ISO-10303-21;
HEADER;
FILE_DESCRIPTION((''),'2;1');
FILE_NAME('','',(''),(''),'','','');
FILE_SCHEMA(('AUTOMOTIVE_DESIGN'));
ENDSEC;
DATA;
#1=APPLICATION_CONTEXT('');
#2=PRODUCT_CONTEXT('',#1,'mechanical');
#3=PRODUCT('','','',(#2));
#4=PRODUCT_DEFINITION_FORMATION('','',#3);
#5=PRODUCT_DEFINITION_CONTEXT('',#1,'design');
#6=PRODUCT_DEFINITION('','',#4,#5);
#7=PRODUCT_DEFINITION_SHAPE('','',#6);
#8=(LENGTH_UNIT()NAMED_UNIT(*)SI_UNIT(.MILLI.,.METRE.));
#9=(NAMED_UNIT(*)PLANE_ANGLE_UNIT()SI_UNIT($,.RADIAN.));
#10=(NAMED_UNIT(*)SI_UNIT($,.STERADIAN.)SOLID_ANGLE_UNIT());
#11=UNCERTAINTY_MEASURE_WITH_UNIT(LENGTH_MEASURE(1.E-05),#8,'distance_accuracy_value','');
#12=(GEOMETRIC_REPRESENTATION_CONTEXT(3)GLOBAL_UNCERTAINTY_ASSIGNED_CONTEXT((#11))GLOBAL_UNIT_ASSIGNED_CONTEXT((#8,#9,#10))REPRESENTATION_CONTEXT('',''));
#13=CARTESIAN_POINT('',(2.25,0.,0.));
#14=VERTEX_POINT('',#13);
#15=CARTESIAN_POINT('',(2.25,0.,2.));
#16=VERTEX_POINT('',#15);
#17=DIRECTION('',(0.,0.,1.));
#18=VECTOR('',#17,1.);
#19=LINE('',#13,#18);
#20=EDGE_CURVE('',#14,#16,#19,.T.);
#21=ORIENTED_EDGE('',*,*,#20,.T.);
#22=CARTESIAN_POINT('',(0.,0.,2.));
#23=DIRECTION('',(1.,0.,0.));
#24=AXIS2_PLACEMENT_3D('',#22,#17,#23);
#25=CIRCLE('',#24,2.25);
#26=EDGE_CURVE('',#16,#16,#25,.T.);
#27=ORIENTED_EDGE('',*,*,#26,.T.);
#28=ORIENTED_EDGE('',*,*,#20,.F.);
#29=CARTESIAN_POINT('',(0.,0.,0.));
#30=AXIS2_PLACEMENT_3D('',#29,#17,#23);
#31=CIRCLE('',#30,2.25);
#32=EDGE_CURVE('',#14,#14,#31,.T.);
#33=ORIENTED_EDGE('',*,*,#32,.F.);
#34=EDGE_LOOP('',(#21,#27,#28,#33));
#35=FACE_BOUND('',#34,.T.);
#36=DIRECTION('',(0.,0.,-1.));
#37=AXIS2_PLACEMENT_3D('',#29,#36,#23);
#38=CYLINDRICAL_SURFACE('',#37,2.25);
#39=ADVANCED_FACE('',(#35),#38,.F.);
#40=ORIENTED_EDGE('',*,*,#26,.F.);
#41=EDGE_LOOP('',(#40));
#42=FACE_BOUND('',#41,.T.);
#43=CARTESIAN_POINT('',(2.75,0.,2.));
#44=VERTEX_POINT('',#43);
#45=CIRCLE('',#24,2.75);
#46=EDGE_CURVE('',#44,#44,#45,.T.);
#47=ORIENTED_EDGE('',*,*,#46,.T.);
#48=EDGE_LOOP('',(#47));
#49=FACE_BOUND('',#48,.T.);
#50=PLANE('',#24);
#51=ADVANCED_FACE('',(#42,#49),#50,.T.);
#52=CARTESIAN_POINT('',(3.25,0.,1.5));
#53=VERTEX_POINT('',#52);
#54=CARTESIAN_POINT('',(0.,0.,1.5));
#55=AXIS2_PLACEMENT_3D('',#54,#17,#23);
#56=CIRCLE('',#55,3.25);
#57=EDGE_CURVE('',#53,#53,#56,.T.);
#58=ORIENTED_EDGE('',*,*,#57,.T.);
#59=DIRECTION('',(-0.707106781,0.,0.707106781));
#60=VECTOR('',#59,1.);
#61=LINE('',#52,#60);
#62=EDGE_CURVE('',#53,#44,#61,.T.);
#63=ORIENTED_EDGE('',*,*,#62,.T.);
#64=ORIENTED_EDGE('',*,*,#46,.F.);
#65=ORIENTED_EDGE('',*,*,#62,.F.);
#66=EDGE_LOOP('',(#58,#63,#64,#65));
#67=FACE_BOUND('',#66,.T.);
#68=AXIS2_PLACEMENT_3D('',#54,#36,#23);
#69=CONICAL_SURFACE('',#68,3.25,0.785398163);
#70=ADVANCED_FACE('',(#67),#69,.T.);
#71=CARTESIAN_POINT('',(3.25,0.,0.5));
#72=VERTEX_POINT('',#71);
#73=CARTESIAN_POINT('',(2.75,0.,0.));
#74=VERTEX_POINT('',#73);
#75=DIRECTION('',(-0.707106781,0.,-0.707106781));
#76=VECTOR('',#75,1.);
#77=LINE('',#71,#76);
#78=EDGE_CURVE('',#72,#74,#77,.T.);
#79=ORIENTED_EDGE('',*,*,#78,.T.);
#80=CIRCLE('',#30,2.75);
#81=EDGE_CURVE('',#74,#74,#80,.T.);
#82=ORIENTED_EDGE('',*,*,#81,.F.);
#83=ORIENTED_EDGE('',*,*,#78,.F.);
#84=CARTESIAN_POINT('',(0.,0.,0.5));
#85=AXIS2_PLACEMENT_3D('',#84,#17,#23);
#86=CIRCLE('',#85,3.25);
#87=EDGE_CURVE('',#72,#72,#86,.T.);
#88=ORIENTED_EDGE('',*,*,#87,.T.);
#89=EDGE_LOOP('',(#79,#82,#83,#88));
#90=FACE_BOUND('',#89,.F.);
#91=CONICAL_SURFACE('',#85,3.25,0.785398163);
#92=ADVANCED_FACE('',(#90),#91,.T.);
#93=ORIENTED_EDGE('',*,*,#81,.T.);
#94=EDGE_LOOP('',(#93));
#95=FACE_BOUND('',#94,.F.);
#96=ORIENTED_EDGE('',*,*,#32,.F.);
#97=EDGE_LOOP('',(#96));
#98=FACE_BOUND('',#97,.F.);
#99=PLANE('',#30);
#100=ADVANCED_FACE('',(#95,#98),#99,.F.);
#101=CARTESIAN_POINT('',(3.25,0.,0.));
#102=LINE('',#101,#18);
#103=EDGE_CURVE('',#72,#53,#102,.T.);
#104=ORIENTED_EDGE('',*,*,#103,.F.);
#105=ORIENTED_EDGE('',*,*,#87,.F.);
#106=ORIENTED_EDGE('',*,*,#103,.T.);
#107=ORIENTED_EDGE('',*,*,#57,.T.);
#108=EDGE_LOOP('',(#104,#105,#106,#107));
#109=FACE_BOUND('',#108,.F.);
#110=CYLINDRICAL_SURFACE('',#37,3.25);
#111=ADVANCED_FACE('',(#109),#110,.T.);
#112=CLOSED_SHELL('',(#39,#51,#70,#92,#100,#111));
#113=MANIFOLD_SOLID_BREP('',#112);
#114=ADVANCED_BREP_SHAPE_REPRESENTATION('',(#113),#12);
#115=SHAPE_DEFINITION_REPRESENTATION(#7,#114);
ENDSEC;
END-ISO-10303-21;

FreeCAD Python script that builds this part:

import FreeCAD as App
import Part
import Sketcher

V = App.Vector


def edges_at(feature, points):
    """Names of the edges that pass closest to the given points."""
    edges = feature.Shape.Edges
    near = lambda p: min(range(len(edges)), key=lambda i: edges[i].distToShape(Part.Vertex(*p))[0])
    return sorted({f"Edge{near(p) + 1}" for p in points})

doc = App.newDocument("Part")
params = doc.addObject("Spreadsheet::Sheet", "Params")
for row, (alias, value) in enumerate([
    ("sketch1_diameter", "6.5 mm"),
    ("sketch1_diameter2", "4.5 mm"),
    ("pad1_length", "2 mm"),
    ("chamfer_size", "0.5 mm"),
], start=1):
    params.set(f"A{row}", alias)
    params.set(f"B{row}", "=" + value)
    params.setAlias(f"B{row}", alias)

body = doc.addObject("PartDesign::Body", "Body")

sketch1 = body.newObject("Sketcher::SketchObject", "Sketch")
sketch1.AttachmentSupport = (doc.getObject("XY_Plane"), [""])
sketch1.MapMode = "FlatFace"
sketch1.addGeometry(Part.Circle(V(0, 0, 0), V(0, 0, 1), 3.2), False)
sketch1.addGeometry(Part.Circle(V(0, 0, 0), V(0, 0, 1), 2.2), False)
sketch1.addConstraint(Sketcher.Constraint("Coincident", 0, 3, -1, 1))
sketch1.addConstraint(Sketcher.Constraint("Coincident", 1, 3, -1, 1))
sketch1.addConstraint(Sketcher.Constraint("Diameter", 0, 6.5))
sketch1.addConstraint(Sketcher.Constraint("Diameter", 1, 4.5))
sketch1.setExpression("Constraints[2]", "Params.sketch1_diameter")
sketch1.setExpression("Constraints[3]", "Params.sketch1_diameter2")
pad1 = body.newObject("PartDesign::Pad", "Pad")
pad1.Profile = sketch1
pad1.setExpression("Length", "Params.pad1_length")
doc.recompute()

chamfer = body.newObject("PartDesign::Chamfer", "Chamfer")
chamfer.Base = (pad1, edges_at(pad1, [(-3.25, 0, 0), (-3.25, 0, 2)]))
chamfer.setExpression("Size", "Params.chamfer_size")

doc.recompute()
